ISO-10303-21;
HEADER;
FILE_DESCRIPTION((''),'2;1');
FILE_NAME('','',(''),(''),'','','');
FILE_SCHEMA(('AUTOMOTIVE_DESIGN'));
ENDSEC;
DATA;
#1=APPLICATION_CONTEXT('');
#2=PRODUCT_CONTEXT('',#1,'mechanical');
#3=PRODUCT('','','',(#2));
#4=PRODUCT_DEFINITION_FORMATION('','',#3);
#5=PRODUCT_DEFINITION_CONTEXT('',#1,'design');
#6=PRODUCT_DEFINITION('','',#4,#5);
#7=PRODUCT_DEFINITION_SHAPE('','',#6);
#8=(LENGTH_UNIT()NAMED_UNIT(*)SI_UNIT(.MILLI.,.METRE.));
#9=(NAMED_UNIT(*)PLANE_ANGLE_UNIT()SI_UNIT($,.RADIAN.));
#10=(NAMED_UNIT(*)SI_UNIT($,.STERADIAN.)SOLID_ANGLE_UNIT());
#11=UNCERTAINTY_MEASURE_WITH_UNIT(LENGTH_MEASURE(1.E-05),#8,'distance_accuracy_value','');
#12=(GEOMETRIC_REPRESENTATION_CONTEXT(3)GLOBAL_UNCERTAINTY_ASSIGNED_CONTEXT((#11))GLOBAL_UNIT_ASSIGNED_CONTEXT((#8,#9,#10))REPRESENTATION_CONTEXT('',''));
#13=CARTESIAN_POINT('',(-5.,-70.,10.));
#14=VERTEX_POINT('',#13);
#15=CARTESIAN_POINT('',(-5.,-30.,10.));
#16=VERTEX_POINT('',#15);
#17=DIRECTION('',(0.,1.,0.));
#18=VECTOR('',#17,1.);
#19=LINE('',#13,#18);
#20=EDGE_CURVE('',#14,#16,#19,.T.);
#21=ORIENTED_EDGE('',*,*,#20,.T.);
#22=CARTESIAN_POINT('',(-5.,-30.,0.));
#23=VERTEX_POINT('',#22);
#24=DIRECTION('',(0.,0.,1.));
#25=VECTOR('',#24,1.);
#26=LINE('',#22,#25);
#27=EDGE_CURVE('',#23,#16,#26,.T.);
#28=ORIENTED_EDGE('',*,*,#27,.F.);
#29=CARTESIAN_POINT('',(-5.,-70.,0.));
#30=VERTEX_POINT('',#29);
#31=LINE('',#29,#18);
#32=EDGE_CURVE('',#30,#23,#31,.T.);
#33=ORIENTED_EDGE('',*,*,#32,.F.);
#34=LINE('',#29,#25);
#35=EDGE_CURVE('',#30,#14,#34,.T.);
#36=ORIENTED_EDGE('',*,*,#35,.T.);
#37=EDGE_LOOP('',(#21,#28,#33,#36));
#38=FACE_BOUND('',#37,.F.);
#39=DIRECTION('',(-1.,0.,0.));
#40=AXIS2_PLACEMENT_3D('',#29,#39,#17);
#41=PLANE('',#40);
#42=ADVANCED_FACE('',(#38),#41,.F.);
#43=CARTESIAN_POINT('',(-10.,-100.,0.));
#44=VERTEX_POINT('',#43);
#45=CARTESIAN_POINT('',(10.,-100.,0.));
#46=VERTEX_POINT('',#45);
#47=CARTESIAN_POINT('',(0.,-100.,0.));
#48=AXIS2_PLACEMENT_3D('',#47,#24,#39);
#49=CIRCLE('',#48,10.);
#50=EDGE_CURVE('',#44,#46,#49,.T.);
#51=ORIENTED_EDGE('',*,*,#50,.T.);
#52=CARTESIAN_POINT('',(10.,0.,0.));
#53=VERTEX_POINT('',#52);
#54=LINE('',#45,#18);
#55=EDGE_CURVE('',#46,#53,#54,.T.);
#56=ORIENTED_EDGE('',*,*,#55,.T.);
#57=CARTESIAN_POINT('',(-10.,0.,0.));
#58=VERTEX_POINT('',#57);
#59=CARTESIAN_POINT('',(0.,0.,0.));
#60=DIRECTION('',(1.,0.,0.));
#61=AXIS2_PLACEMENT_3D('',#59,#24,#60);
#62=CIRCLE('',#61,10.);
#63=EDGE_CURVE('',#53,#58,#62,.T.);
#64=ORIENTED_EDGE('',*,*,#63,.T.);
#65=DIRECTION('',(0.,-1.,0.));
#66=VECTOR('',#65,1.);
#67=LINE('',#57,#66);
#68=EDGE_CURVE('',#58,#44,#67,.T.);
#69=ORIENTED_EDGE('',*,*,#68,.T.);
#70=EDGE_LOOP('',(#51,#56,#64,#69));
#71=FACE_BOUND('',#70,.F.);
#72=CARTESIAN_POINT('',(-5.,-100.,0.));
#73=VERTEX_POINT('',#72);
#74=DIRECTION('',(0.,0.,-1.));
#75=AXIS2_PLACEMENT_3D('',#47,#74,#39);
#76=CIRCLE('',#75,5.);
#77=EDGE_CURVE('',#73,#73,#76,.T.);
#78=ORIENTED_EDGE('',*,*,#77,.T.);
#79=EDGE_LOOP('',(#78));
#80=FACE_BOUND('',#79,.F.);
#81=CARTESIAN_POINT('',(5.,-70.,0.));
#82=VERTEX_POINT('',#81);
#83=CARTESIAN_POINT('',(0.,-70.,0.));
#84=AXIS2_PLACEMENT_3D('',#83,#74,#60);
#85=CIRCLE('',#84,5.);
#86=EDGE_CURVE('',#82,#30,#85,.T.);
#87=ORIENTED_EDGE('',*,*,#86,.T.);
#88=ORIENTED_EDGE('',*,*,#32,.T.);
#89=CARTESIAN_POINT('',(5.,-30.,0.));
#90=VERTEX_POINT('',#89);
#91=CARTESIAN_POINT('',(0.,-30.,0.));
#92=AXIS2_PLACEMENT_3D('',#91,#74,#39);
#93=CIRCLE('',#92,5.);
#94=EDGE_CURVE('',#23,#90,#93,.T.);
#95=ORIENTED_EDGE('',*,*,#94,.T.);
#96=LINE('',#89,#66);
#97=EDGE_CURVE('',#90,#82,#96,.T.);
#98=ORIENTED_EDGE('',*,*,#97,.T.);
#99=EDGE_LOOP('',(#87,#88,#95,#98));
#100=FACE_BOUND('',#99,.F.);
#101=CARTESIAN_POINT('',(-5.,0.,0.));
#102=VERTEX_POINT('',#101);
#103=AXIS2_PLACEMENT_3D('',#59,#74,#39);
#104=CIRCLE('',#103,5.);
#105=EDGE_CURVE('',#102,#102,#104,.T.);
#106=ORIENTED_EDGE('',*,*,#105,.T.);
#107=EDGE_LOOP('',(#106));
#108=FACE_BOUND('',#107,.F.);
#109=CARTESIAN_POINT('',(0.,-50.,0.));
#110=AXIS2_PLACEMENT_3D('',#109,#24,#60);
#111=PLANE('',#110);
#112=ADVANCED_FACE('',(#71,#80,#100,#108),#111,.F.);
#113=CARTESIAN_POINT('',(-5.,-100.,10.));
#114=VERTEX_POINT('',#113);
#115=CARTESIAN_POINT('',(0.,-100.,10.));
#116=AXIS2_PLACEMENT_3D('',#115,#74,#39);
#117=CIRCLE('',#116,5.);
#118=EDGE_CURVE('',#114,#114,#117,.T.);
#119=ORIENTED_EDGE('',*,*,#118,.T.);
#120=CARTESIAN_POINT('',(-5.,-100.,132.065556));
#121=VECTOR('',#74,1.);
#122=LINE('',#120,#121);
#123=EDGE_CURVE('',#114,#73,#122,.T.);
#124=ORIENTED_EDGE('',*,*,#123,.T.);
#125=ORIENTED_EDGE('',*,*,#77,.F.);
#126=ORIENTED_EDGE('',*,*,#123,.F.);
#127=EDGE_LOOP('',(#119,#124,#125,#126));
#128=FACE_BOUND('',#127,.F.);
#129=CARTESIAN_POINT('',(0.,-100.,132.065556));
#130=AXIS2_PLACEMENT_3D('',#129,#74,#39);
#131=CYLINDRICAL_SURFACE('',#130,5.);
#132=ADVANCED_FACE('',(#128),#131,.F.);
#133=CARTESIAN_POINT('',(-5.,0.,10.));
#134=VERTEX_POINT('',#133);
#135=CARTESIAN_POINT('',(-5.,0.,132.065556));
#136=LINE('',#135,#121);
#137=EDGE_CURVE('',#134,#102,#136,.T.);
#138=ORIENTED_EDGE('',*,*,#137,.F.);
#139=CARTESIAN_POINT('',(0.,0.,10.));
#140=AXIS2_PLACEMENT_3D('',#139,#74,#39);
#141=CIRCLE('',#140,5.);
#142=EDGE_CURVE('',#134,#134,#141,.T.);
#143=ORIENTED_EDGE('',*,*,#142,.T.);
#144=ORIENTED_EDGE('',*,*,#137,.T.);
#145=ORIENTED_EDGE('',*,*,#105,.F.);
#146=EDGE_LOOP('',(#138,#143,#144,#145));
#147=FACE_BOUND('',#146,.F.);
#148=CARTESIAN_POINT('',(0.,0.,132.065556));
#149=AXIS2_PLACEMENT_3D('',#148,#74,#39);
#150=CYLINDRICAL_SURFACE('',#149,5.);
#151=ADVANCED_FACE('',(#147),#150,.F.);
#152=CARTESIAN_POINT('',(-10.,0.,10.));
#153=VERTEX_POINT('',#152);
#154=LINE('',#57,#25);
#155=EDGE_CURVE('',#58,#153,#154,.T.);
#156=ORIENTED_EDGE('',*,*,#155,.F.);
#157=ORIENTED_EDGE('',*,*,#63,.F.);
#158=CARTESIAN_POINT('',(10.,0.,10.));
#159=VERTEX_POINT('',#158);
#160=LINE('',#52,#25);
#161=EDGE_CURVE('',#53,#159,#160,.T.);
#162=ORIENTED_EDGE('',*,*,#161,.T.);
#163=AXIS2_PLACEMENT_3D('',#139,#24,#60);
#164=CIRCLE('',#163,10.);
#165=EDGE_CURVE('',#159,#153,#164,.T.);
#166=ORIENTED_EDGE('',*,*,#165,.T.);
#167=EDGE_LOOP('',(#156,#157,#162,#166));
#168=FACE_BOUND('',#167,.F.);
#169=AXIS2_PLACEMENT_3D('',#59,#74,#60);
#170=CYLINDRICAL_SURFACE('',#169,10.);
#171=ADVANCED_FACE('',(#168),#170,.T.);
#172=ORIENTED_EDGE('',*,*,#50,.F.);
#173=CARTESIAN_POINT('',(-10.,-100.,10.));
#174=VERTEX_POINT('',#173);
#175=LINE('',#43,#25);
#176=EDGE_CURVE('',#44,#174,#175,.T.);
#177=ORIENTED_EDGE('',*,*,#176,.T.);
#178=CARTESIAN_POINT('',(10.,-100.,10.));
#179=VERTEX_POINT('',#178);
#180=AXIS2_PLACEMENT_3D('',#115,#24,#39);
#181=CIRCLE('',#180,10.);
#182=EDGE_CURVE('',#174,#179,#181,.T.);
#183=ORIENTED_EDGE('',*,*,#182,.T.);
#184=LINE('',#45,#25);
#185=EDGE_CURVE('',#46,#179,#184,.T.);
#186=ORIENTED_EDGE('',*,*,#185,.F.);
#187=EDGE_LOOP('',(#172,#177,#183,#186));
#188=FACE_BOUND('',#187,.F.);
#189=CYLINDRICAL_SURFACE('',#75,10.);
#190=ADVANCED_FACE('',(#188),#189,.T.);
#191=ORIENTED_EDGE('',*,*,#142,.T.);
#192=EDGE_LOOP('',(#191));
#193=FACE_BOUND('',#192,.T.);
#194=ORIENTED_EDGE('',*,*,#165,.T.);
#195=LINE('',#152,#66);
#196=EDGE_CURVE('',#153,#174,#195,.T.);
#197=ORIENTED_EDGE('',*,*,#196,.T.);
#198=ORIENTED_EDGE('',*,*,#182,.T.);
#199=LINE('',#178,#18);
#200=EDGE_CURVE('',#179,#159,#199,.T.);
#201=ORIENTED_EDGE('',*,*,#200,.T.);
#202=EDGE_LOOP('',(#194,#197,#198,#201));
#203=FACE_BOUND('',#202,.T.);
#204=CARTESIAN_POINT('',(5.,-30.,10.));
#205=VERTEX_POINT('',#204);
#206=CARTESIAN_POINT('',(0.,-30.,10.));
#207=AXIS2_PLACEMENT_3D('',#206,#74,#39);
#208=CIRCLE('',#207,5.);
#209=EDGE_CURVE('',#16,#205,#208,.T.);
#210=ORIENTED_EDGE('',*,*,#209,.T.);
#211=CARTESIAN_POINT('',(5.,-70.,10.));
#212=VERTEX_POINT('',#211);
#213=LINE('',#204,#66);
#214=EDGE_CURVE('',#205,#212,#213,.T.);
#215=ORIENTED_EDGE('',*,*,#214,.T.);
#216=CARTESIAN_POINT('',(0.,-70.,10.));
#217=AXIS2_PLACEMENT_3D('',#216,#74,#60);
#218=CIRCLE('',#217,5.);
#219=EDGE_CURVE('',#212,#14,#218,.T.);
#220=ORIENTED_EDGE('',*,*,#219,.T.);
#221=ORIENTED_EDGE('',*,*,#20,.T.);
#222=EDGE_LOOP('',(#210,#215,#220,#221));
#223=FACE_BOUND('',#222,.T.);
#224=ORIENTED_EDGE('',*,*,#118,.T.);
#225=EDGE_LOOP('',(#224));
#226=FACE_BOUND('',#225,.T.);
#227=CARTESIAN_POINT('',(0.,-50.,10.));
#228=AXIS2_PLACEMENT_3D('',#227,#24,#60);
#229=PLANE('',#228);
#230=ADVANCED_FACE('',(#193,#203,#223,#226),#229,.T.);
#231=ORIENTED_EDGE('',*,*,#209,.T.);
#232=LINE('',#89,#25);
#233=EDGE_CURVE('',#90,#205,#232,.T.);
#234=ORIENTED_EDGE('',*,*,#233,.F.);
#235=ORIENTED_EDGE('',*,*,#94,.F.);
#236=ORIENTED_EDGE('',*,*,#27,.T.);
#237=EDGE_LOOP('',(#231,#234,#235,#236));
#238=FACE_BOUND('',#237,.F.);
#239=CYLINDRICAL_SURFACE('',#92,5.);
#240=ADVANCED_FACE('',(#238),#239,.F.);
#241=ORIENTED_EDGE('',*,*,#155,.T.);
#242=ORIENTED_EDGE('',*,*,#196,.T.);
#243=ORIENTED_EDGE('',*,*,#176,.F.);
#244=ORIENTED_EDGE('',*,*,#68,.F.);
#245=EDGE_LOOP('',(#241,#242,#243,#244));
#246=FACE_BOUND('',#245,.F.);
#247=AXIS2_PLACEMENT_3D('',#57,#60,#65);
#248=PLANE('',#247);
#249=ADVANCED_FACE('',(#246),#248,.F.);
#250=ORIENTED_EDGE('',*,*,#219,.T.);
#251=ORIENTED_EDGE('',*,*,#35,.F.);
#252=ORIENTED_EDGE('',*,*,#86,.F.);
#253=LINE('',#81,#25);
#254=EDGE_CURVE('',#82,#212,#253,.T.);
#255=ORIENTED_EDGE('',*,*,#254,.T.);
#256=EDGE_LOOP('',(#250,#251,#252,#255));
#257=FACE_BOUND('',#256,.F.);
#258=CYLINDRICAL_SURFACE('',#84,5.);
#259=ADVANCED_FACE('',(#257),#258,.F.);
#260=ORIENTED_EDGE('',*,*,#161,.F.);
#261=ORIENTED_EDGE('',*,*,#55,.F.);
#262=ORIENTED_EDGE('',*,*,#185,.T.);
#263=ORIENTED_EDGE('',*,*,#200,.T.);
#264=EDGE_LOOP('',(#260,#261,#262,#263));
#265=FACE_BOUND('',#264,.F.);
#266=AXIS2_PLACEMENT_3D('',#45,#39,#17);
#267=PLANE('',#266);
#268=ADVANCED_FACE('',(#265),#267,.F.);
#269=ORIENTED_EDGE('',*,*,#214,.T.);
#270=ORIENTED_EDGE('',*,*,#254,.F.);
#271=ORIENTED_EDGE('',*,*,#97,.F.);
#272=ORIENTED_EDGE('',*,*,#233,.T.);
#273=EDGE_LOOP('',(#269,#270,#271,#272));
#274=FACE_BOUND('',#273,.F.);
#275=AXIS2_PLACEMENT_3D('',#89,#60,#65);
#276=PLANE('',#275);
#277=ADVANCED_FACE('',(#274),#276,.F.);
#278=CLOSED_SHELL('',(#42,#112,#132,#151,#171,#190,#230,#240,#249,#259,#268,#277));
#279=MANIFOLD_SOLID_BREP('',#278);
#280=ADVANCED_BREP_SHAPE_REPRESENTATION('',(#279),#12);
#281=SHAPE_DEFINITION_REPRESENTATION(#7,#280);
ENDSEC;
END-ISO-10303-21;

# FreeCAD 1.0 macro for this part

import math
import FreeCAD as App
import Part
import Sketcher
Q = App.Units.Quantity

doc = App.newDocument("Part")
body = doc.addObject("PartDesign::Body", "Body")

sketch1 = body.newObject("Sketcher::SketchObject", "Sketch")
sketch1.AttachmentSupport = (doc.getObject("XY_Plane"), [""])
sketch1.MapMode = "FlatFace"
sketch1.addGeometry(Part.LineSegment(App.Vector(10, -100, 0), App.Vector(10, 0, 0)), False)
sketch1.addGeometry(Part.ArcOfCircle(Part.Circle(App.Vector(0, 0, 0), App.Vector(0, 0, 1), 10), math.radians(0), math.radians(180)), False)
sketch1.addGeometry(Part.LineSegment(App.Vector(-10, 0, 0), App.Vector(-10, -100, 0)), False)
sketch1.addGeometry(Part.ArcOfCircle(Part.Circle(App.Vector(0, -100, 0), App.Vector(0, 0, 1), 10), math.radians(180), math.radians(360)), False)
sketch1.addGeometry(Part.LineSegment(App.Vector(-5, -70, 0), App.Vector(-5, -30, 0)), False)
sketch1.addGeometry(Part.ArcOfCircle(Part.Circle(App.Vector(0, -30, 0), App.Vector(0, 0, 1), 5), math.radians(0), math.radians(180)), False)
sketch1.addGeometry(Part.LineSegment(App.Vector(5, -30, 0), App.Vector(5, -70, 0)), False)
sketch1.addGeometry(Part.ArcOfCircle(Part.Circle(App.Vector(0, -70, 0), App.Vector(0, 0, 1), 5), math.radians(180), math.radians(360)), False)
sketch1.addConstraint(Sketcher.Constraint("Tangent", 0, 2, 1, 1))
sketch1.addConstraint(Sketcher.Constraint("Tangent", 1, 2, 2, 1))
sketch1.addConstraint(Sketcher.Constraint("Tangent", 2, 2, 3, 1))
sketch1.addConstraint(Sketcher.Constraint("Tangent", 3, 2, 0, 1))
sketch1.addConstraint(Sketcher.Constraint("Tangent", 4, 2, 5, 2))
sketch1.addConstraint(Sketcher.Constraint("Tangent", 5, 1, 6, 1))
sketch1.addConstraint(Sketcher.Constraint("Tangent", 6, 2, 7, 2))
sketch1.addConstraint(Sketcher.Constraint("Tangent", 7, 1, 4, 1))
sketch1.addConstraint(Sketcher.Constraint("Vertical", 0))
sketch1.addConstraint(Sketcher.Constraint("Vertical", 2))
sketch1.addConstraint(Sketcher.Constraint("Vertical", 4))
sketch1.addConstraint(Sketcher.Constraint("Vertical", 6))
sketch1.addConstraint(Sketcher.Constraint("Coincident", 1, 3, -1, 1))
sketch1.addConstraint(Sketcher.Constraint("PointOnObject", 5, 3, -2))
sketch1.addConstraint(Sketcher.Constraint("Radius", 1, Q("10 mm")))
sketch1.addConstraint(Sketcher.Constraint("Radius", 5, Q("5 mm")))
sketch1.addConstraint(Sketcher.Constraint("DistanceY", 0, 1, 0, 2, Q("100 mm")))
sketch1.addConstraint(Sketcher.Constraint("DistanceY", 4, 1, 4, 2, Q("40 mm")))
sketch1.addConstraint(Sketcher.Constraint("DistanceY", 5, 3, -1, 1, Q("30 mm")))
pad1 = body.newObject("PartDesign::Pad", "Pad")
pad1.Profile = sketch1
pad1.Length = 10

sketch2 = body.newObject("Sketcher::SketchObject", "Sketch001")
sketch2.AttachmentSupport = (doc.getObject("XY_Plane"), [""])
sketch2.MapMode = "FlatFace"
sketch2.AttachmentOffset = App.Placement(App.Vector(0, 0, 10), App.Rotation())
sketch2.addGeometry(Part.Circle(App.Vector(0, 0, 0), App.Vector(0, 0, 1), 5), False)
sketch2.addGeometry(Part.Circle(App.Vector(0, -100, 0), App.Vector(0, 0, 1), 5), False)
sketch2.addConstraint(Sketcher.Constraint("Coincident", 0, 3, -1, 1))
sketch2.addConstraint(Sketcher.Constraint("Equal", 0, 1))
sketch2.addConstraint(Sketcher.Constraint("PointOnObject", 1, 3, -2))
sketch2.addConstraint(Sketcher.Constraint("Diameter", 0, Q("10 mm")))
sketch2.addConstraint(Sketcher.Constraint("DistanceY", 1, 3, -1, 1, Q("100 mm")))
doc.recompute()
hole = body.newObject("PartDesign::Hole", "Hole")
hole.Profile = sketch2
hole.ThreadType = "None"
hole.Diameter = 10
hole.DepthType = "ThroughAll"

doc.recompute()
